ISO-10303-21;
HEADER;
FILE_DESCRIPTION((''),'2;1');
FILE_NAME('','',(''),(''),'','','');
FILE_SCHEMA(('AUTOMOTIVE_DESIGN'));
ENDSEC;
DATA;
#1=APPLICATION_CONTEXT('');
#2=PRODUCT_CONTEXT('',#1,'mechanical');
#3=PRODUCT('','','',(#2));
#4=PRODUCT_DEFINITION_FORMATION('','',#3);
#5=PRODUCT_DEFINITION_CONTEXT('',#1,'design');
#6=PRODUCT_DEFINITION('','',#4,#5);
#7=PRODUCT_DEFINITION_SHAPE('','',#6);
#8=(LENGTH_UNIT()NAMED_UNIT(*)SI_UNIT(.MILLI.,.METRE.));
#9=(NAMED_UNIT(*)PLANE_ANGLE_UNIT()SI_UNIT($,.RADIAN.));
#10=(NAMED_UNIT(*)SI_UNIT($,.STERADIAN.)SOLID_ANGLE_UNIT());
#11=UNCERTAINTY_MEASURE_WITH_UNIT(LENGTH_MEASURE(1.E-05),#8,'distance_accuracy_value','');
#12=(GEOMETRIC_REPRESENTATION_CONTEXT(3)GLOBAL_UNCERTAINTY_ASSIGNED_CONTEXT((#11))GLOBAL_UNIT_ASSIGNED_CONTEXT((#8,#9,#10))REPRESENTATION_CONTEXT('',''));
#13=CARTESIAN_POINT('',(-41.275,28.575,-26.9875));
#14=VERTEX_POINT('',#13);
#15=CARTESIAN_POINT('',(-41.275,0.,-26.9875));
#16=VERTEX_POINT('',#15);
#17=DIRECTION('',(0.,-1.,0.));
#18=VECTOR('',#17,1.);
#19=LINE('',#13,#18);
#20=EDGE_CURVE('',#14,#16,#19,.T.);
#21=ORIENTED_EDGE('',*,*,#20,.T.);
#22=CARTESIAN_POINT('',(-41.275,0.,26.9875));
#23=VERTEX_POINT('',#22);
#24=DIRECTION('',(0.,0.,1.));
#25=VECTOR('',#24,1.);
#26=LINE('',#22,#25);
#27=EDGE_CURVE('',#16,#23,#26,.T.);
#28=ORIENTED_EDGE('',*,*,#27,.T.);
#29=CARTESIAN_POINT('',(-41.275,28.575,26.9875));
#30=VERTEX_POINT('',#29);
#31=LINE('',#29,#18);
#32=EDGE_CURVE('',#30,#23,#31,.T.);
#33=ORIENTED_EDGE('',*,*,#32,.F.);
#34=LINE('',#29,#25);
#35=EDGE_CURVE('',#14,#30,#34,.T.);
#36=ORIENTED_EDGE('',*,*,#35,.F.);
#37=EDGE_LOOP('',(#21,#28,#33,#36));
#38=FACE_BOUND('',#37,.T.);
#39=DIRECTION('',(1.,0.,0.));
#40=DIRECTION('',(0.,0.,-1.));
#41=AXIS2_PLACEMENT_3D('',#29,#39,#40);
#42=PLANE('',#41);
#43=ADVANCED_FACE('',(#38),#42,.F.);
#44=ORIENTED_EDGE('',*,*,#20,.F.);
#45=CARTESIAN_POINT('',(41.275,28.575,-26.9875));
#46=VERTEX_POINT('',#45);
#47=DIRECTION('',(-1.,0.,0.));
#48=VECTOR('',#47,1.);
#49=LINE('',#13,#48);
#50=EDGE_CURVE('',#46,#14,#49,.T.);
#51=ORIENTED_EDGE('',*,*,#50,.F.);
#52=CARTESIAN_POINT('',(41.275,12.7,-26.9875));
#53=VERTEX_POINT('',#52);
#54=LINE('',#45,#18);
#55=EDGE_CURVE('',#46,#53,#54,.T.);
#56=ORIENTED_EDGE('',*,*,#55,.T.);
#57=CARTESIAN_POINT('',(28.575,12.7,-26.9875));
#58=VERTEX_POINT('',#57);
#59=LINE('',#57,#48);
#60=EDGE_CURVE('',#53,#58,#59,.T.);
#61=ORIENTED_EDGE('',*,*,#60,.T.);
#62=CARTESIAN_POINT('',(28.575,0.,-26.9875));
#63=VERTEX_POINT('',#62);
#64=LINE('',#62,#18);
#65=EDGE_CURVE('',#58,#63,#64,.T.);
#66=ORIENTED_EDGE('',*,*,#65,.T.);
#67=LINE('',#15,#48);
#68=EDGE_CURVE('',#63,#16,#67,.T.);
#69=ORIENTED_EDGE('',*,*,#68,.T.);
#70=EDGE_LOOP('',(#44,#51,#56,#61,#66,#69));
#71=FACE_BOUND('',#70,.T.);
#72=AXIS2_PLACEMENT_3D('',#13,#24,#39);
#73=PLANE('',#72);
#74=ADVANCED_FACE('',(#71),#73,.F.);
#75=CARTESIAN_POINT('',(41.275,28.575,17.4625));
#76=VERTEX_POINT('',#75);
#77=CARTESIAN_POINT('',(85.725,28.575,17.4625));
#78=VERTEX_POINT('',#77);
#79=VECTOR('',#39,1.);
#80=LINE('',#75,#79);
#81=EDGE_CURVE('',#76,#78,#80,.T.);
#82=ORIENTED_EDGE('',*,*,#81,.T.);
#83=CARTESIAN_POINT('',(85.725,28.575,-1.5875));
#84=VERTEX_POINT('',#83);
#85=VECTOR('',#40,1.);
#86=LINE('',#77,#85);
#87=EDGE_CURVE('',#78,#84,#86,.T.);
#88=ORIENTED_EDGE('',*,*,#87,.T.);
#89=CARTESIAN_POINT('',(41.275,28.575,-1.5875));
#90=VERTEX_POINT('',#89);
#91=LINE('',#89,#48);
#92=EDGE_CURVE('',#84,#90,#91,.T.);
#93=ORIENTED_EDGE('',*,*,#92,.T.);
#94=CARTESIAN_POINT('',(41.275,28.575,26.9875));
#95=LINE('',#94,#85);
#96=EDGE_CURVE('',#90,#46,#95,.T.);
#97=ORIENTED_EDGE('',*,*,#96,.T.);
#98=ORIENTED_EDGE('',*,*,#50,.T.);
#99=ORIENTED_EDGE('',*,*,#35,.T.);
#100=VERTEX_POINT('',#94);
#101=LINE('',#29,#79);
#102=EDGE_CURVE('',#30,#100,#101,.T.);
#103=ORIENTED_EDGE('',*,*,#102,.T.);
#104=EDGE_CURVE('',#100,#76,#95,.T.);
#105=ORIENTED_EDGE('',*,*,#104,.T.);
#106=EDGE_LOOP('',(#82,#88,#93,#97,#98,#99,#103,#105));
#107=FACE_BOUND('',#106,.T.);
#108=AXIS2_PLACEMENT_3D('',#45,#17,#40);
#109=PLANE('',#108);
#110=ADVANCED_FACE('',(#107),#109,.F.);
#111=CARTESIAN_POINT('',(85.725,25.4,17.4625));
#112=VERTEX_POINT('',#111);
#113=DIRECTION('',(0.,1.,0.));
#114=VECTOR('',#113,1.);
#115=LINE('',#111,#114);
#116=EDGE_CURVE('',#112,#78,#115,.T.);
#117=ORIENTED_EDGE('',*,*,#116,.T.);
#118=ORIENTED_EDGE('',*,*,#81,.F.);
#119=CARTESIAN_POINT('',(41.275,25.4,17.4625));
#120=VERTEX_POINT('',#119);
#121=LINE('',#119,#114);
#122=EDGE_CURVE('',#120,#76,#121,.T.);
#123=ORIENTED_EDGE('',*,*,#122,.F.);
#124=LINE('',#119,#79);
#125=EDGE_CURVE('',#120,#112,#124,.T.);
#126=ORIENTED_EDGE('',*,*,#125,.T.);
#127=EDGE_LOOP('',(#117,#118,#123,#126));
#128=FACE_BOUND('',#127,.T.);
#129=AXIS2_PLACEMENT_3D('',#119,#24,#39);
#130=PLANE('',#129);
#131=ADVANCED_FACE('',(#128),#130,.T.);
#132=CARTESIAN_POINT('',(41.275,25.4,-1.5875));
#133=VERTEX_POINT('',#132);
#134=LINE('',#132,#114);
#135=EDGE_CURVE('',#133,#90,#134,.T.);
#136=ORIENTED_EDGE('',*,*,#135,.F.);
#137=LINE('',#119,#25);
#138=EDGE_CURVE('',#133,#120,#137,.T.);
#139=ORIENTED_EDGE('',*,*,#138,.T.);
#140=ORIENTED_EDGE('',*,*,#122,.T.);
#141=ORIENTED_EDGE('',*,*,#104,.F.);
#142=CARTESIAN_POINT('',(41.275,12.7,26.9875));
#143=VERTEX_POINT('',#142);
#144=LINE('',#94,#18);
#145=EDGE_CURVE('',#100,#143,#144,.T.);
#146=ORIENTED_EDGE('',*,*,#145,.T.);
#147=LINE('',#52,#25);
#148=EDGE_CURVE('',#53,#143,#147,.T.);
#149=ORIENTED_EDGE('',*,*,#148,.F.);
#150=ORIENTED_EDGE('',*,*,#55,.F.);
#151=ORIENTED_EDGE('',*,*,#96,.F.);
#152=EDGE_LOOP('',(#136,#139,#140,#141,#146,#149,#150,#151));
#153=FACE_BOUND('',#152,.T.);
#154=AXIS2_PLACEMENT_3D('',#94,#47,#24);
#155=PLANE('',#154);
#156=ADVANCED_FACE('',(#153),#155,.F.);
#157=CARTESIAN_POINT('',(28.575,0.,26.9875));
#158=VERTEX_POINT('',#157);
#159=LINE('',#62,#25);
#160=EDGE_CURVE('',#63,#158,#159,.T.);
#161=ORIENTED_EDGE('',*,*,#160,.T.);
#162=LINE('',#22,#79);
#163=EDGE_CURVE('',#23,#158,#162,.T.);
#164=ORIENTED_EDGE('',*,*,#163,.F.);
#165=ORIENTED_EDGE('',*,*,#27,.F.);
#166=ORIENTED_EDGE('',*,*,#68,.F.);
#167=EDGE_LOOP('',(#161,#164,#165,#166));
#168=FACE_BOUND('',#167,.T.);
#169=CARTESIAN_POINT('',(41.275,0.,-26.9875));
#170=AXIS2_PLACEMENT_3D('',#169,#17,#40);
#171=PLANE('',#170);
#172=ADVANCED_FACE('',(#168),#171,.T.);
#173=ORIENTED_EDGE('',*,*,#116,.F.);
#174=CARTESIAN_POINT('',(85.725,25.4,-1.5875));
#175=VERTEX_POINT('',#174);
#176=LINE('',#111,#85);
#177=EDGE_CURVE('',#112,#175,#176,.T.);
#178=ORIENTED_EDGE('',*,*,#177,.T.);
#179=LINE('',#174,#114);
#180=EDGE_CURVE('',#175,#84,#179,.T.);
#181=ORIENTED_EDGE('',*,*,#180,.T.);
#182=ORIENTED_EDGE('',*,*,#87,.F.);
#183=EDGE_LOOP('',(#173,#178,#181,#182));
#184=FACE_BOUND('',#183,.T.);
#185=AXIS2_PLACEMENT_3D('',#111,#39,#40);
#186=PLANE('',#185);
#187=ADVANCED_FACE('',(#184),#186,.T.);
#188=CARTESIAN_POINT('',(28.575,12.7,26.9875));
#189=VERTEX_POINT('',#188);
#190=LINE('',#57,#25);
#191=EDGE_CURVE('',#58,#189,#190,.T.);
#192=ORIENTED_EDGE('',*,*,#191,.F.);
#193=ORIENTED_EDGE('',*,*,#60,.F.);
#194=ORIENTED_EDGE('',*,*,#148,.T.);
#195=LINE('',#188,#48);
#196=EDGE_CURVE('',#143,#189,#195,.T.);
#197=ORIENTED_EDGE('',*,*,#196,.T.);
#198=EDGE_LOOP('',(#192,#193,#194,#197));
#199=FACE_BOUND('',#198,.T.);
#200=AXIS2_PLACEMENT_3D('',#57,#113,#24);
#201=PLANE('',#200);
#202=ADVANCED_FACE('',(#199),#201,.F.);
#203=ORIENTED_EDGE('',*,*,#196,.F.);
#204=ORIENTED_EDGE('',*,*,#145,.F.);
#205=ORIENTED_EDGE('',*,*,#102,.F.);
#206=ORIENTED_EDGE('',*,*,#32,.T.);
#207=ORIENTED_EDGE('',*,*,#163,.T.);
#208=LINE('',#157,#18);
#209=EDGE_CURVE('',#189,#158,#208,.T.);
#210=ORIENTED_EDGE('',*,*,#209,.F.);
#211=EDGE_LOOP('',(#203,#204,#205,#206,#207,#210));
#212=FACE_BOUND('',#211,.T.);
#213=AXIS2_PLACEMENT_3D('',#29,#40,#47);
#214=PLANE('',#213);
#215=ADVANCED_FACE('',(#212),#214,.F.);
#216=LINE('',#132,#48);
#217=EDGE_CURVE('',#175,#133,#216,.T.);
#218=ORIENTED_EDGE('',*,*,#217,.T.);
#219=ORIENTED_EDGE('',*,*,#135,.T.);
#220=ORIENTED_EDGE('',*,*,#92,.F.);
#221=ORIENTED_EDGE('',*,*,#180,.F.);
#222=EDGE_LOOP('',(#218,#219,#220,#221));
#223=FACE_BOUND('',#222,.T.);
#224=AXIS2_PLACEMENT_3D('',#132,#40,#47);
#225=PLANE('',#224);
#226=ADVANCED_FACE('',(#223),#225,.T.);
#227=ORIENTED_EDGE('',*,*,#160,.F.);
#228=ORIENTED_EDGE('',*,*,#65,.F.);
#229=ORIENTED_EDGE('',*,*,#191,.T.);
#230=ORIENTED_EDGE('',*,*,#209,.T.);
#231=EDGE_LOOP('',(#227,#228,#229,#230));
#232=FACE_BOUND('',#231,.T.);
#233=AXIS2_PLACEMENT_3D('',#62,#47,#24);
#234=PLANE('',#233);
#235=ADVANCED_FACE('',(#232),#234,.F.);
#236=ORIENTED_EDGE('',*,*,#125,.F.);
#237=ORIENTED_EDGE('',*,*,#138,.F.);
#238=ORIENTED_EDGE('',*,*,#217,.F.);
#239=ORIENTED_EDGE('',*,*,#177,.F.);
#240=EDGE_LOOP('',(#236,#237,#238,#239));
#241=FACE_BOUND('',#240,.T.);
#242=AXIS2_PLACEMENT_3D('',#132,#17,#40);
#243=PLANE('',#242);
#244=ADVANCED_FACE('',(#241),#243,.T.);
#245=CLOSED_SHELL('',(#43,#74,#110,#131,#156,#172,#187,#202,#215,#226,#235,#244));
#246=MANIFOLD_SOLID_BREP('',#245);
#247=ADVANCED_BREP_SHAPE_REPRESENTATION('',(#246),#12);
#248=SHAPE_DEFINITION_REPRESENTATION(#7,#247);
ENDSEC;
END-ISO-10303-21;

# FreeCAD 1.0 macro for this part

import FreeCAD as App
import Part
import Sketcher
from FreeCAD import Vector
Q = App.Units.Quantity


def add_polygon(sketch, points):
    """Adds a closed chain of lines whose ends are joined by coincident constraints."""
    first, n = sketch.GeometryCount, len(points)
    for a, b in zip(points, points[1:] + points[:1]):
        sketch.addGeometry(Part.LineSegment(App.Vector(*a, 0), App.Vector(*b, 0)), False)
    for i in range(n):
        sketch.addConstraint(Sketcher.Constraint("Coincident", first + i, 2, first + (i + 1) % n, 1))

doc = App.newDocument("Part")
body = doc.addObject("PartDesign::Body", "Body")

sketch1 = body.newObject("Sketcher::SketchObject", "Sketch")
sketch1.AttachmentSupport = (doc.getObject("XZ_Plane"), [""])
sketch1.MapMode = "FlatFace"
add_polygon(sketch1, [(-41, -27), (-41, 27), (41, 27), (41, -27)])
sketch1.addConstraint([
    Sketcher.Constraint("Vertical", 0),
    Sketcher.Constraint("Horizontal", 1),
    Sketcher.Constraint("Vertical", 2),
    Sketcher.Constraint("Horizontal", 3),
    Sketcher.Constraint("Symmetric", 0, 2, 2, 2, -1, 1),
    Sketcher.Constraint("DistanceX", 1, 1, 1, 2, Q("3.25 in")),
    Sketcher.Constraint("DistanceY", 0, 1, 0, 2, Q("2.125 in")),
])
pad1 = body.newObject("PartDesign::Pad", "Pad")
pad1.Profile = sketch1
pad1.Length = Q("1.125 in")
pad1.Reversed = True

sketch2 = body.newObject("Sketcher::SketchObject", "Sketch001")
sketch2.AttachmentSupport = (doc.getObject("XY_Plane"), [""])
sketch2.MapMode = "FlatFace"
sketch2.AttachmentOffset = App.Placement(Vector(0, 0, 1.0625 * 25.4), App.Rotation())
add_polygon(sketch2, [(29, 13), (29, 0), (41, 0), (41, 13)])
sketch2.addConstraint([
    Sketcher.Constraint("Vertical", 0),
    Sketcher.Constraint("Horizontal", 1),
    Sketcher.Constraint("Vertical", 2),
    Sketcher.Constraint("Horizontal", 3),
    Sketcher.Constraint("PointOnObject", 0, 2, -1),
    Sketcher.Constraint("Equal", 3, 0),
    Sketcher.Constraint("DistanceX", 1, 1, 1, 2, Q("0.5 in")),
    Sketcher.Constraint("DistanceX", -1, 1, 0, 2, Q("1.125 in")),
])
pocket1 = body.newObject("PartDesign::Pocket", "Pocket")
pocket1.Profile = sketch2
pocket1.Type = "ThroughAll"

sketch3 = body.newObject("Sketcher::SketchObject", "Sketch002")
sketch3.AttachmentSupport = (doc.getObject("XZ_Plane"), [""])
sketch3.MapMode = "FlatFace"
sketch3.AttachmentOffset = App.Placement(Vector(0, 0, -1.125 * 25.4), App.Rotation())
add_polygon(sketch3, [(41, -2), (41, 17), (86, 17), (86, -2)])
sketch3.addConstraint([
    Sketcher.Constraint("Vertical", 0),
    Sketcher.Constraint("Horizontal", 1),
    Sketcher.Constraint("Vertical", 2),
    Sketcher.Constraint("Horizontal", 3),
    Sketcher.Constraint("DistanceX", 1, 1, 1, 2, Q("1.75 in")),
    Sketcher.Constraint("DistanceY", 0, 1, 0, 2, Q("0.75 in")),
    Sketcher.Constraint("DistanceX", -1, 1, 0, 2, Q("1.625 in")),
    Sketcher.Constraint("DistanceY", -1, 1, 0, 2, Q("0.6875 in")),
])
pad2 = body.newObject("PartDesign::Pad", "Pad001")
pad2.Profile = sketch3
pad2.Length = Q("0.125 in")

doc.recompute()
